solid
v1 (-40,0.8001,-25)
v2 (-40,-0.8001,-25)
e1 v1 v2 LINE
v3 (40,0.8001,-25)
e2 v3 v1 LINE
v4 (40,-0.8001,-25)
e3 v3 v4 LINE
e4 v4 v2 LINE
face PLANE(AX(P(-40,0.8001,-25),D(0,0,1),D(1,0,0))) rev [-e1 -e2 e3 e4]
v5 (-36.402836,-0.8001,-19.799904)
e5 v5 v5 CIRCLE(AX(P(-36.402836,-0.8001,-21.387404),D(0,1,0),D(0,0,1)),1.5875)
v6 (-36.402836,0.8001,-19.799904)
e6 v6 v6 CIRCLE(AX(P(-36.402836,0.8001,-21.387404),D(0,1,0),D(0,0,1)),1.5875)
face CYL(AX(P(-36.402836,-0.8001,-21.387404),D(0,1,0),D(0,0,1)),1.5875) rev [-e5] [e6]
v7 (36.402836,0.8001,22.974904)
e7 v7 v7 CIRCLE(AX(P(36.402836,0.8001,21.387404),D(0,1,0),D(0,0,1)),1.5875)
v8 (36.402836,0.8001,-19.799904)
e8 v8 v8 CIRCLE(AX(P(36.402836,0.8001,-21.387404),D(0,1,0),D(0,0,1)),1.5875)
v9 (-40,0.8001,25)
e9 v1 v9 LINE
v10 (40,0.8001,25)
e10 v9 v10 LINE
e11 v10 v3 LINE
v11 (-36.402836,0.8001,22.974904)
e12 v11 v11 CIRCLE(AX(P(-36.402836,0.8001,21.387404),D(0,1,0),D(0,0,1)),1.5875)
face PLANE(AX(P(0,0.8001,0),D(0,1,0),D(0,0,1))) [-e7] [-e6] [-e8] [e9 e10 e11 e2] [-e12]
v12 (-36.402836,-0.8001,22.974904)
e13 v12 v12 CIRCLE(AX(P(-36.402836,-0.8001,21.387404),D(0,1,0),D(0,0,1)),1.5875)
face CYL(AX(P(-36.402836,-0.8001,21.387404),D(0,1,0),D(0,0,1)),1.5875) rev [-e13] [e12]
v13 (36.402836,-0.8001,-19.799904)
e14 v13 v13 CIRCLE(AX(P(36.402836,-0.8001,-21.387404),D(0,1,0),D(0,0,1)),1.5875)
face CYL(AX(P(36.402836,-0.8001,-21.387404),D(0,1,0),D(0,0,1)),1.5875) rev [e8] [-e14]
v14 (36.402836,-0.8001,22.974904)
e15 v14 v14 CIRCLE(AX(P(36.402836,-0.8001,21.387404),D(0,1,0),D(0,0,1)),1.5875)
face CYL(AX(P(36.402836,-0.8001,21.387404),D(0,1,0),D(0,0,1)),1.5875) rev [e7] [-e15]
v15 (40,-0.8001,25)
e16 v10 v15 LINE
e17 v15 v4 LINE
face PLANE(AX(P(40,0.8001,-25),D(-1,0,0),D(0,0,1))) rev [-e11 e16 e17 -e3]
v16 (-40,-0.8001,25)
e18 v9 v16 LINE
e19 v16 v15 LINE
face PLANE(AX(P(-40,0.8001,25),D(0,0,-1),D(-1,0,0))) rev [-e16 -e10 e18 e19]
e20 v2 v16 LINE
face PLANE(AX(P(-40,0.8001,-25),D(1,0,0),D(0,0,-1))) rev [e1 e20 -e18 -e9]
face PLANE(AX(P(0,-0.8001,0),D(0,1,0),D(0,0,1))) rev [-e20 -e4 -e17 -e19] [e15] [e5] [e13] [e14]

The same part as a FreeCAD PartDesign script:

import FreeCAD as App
import Part
import Sketcher


def add_polygon(sketch, points):
    """Adds a closed chain of lines whose ends are joined by coincident constraints."""
    first, n = sketch.GeometryCount, len(points)
    for a, b in zip(points, points[1:] + points[:1]):
        sketch.addGeometry(Part.LineSegment(App.Vector(*a, 0), App.Vector(*b, 0)), False)
    for i in range(n):
        sketch.addConstraint(Sketcher.Constraint("Coincident", first + i, 2, first + (i + 1) % n, 1))

doc = App.newDocument("Part")
body = doc.addObject("PartDesign::Body", "Body")

# Sketch on XZ plane
sketch1 = body.newObject("Sketcher::SketchObject", "Sketch")
sketch1.AttachmentSupport = (doc.getObject("XZ_Plane"), [""])
sketch1.MapMode = "FlatFace"
add_polygon(sketch1, [(-40, -25), (-40, 25), (40, 25), (40, -25)])  # lines 0-3
sketch1.addConstraint([
    Sketcher.Constraint("Vertical", 0),
    Sketcher.Constraint("Horizontal", 1),
    Sketcher.Constraint("Vertical", 2),
    Sketcher.Constraint("Horizontal", 3),
    Sketcher.Constraint("Symmetric", 0, 2, 2, 2, -1, 1),
    Sketcher.Constraint("DistanceX", 1, 1, 1, 2, 80.0),
    Sketcher.Constraint("DistanceY", 0, 1, 0, 2, 50.0),
])
pad1 = body.newObject("PartDesign::Pad", "Pad")
pad1.Profile = sketch1
pad1.Length = 1.6002
pad1.Midplane = True

# Sketch on XZ plane
sketch2 = body.newObject("Sketcher::SketchObject", "Sketch001")
sketch2.AttachmentSupport = (doc.getObject("XZ_Plane"), [""])
sketch2.MapMode = "FlatFace"
sketch2.AttachmentOffset = App.Placement(App.Vector(0, 0, -0.8001), App.Rotation())
sketch2.addGeometry([
    Part.Circle(App.Vector(-36.402836, -21.387404, 0), App.Vector(0, 0, 1), 1.5875),
    Part.Circle(App.Vector(-36.402836, 21.387404, 0), App.Vector(0, 0, 1), 1.5875),
    Part.Circle(App.Vector(36.402836, 21.387404, 0), App.Vector(0, 0, 1), 1.5875),
    Part.Circle(App.Vector(36.402836, -21.387404, 0), App.Vector(0, 0, 1), 1.5875),
], False)
sketch2.addConstraint([
    Sketcher.Constraint("Equal", 0, 1),
    Sketcher.Constraint("Equal", 1, 2),
    Sketcher.Constraint("Equal", 2, 3),
    Sketcher.Constraint("Symmetric", 0, 3, 2, 3, -1, 1),
    Sketcher.Constraint("Symmetric", 1, 3, 3, 3, -1, 1),
    Sketcher.Constraint("Symmetric", 1, 3, 2, 3, -2),
    Sketcher.Constraint("Diameter", 0, 3.175),
    Sketcher.Constraint("DistanceX", 0, 3, -1, 1, 36.402836),
    Sketcher.Constraint("DistanceY", 0, 3, -1, 1, 21.387404),
])
pocket1 = body.newObject("PartDesign::Pocket", "Pocket")
pocket1.Profile = sketch2
pocket1.Type = "ThroughAll"
pocket1.Reversed = True

doc.recompute()
